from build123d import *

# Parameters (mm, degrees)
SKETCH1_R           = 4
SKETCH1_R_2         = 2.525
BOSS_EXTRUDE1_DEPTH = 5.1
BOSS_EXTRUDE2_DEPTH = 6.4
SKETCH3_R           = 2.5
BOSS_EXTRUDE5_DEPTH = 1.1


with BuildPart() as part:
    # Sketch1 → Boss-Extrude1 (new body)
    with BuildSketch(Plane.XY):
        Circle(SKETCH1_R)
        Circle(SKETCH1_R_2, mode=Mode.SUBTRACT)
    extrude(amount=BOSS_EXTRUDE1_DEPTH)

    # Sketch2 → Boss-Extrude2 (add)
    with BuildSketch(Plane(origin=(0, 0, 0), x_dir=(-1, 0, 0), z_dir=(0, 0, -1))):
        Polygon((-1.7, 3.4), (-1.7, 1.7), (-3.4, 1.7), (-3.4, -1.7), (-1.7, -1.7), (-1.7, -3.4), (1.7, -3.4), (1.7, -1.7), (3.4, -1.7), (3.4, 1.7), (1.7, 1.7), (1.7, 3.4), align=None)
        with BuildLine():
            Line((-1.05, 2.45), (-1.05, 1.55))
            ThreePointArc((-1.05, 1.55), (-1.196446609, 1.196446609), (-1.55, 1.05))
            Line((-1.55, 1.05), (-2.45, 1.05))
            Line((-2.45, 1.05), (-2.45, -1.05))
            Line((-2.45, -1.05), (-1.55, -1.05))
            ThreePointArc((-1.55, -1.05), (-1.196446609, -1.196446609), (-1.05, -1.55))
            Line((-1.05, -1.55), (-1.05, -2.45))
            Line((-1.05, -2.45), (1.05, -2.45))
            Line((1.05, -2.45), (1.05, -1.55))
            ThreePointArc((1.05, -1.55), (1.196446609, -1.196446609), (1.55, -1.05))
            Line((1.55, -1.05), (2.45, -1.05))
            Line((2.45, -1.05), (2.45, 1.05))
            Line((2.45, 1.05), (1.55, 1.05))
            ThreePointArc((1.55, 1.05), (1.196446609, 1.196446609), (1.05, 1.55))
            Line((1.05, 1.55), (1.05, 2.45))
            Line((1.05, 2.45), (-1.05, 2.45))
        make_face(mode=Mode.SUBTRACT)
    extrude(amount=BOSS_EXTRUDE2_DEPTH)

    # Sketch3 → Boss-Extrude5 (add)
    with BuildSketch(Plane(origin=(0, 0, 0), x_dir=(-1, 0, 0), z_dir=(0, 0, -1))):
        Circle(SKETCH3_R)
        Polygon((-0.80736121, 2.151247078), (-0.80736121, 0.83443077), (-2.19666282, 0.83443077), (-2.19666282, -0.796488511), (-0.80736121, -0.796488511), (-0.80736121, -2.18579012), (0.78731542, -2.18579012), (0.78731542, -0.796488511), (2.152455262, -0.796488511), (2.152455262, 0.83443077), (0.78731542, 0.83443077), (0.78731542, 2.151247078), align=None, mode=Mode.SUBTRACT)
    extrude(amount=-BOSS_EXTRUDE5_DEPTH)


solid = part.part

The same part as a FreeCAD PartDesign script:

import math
import FreeCAD as App
import Part
import Sketcher
Q = App.Units.Quantity

doc = App.newDocument("Part")
body = doc.addObject("PartDesign::Body", "Body")

sketch1 = body.newObject("Sketcher::SketchObject", "Sketch")
sketch1.AttachmentSupport = (doc.getObject("XY_Plane"), [""])
sketch1.MapMode = "FlatFace"
sketch1.addGeometry(Part.Circle(App.Vector(0, 0, 0), App.Vector(0, 0, 1), 4), False)
sketch1.addGeometry(Part.Circle(App.Vector(0, 0, 0), App.Vector(0, 0, 1), 2.5), False)
sketch1.addConstraint(Sketcher.Constraint("Coincident", 0, 3, -1, 1))
sketch1.addConstraint(Sketcher.Constraint("Coincident", 1, 3, -1, 1))
sketch1.addConstraint(Sketcher.Constraint("Diameter", 0, Q("8 mm")))
sketch1.addConstraint(Sketcher.Constraint("Diameter", 1, Q("5.05 mm")))
pad1 = body.newObject("PartDesign::Pad", "Pad")
pad1.Profile = sketch1
pad1.Length = 5.1

sketch2 = body.newObject("Sketcher::SketchObject", "Sketch001")
sketch2.AttachmentSupport = (doc.getObject("XY_Plane"), [""])
sketch2.MapMode = "FlatFace"
sketch2.addGeometry(Part.LineSegment(App.Vector(1.7, 3.4, 0), App.Vector(1.7, 1.7, 0)), False)
sketch2.addGeometry(Part.LineSegment(App.Vector(1.7, 1.7, 0), App.Vector(3.4, 1.7, 0)), False)
sketch2.addGeometry(Part.LineSegment(App.Vector(3.4, 1.7, 0), App.Vector(3.4, -1.7, 0)), False)
sketch2.addGeometry(Part.LineSegment(App.Vector(3.4, -1.7, 0), App.Vector(1.7, -1.7, 0)), False)
sketch2.addGeometry(Part.LineSegment(App.Vector(1.7, -1.7, 0), App.Vector(1.7, -3.4, 0)), False)
sketch2.addGeometry(Part.LineSegment(App.Vector(1.7, -3.4, 0), App.Vector(-1.7, -3.4, 0)), False)
sketch2.addGeometry(Part.LineSegment(App.Vector(-1.7, -3.4, 0), App.Vector(-1.7, -1.7, 0)), False)
sketch2.addGeometry(Part.LineSegment(App.Vector(-1.7, -1.7, 0), App.Vector(-3.4, -1.7, 0)), False)
sketch2.addGeometry(Part.LineSegment(App.Vector(-3.4, -1.7, 0), App.Vector(-3.4, 1.7, 0)), False)
sketch2.addGeometry(Part.LineSegment(App.Vector(-3.4, 1.7, 0), App.Vector(-1.7, 1.7, 0)), False)
sketch2.addGeometry(Part.LineSegment(App.Vector(-1.7, 1.7, 0), App.Vector(-1.7, 3.4, 0)), False)
sketch2.addGeometry(Part.LineSegment(App.Vector(-1.7, 3.4, 0), App.Vector(1.7, 3.4, 0)), False)
sketch2.addGeometry(Part.LineSegment(App.Vector(1.05, 1.55, 0), App.Vector(1.05, 2.45, 0)), False)
sketch2.addGeometry(Part.LineSegment(App.Vector(1.05, 2.45, 0), App.Vector(-1.05, 2.45, 0)), False)
sketch2.addGeometry(Part.LineSegment(App.Vector(-1.05, 2.45, 0), App.Vector(-1.05, 1.55, 0)), False)
sketch2.addGeometry(Part.ArcOfCircle(Part.Circle(App.Vector(-1.55, 1.55, 0), App.Vector(0, 0, 1), 0.5), math.radians(-90), math.radians(0)), False)
sketch2.addGeometry(Part.LineSegment(App.Vector(-1.55, 1.05, 0), App.Vector(-2.45, 1.05, 0)), False)
sketch2.addGeometry(Part.LineSegment(App.Vector(-2.45, 1.05, 0), App.Vector(-2.45, -1.05, 0)), False)
sketch2.addGeometry(Part.LineSegment(App.Vector(-2.45, -1.05, 0), App.Vector(-1.55, -1.05, 0)), False)
sketch2.addGeometry(Part.ArcOfCircle(Part.Circle(App.Vector(-1.55, -1.55, 0), App.Vector(0, 0, 1), 0.5), math.radians(0), math.radians(90)), False)
sketch2.addGeometry(Part.LineSegment(App.Vector(-1.05, -1.55, 0), App.Vector(-1.05, -2.45, 0)), False)
sketch2.addGeometry(Part.LineSegment(App.Vector(-1.05, -2.45, 0), App.Vector(1.05, -2.45, 0)), False)
sketch2.addGeometry(Part.LineSegment(App.Vector(1.05, -2.45, 0), App.Vector(1.05, -1.55, 0)), False)
sketch2.addGeometry(Part.ArcOfCircle(Part.Circle(App.Vector(1.55, -1.55, 0), App.Vector(0, 0, 1), 0.5), math.radians(90), math.radians(180)), False)
sketch2.addGeometry(Part.LineSegment(App.Vector(1.55, -1.05, 0), App.Vector(2.45, -1.05, 0)), False)
sketch2.addGeometry(Part.LineSegment(App.Vector(2.45, -1.05, 0), App.Vector(2.45, 1.05, 0)), False)
sketch2.addGeometry(Part.LineSegment(App.Vector(2.45, 1.05, 0), App.Vector(1.55, 1.05, 0)), False)
sketch2.addGeometry(Part.ArcOfCircle(Part.Circle(App.Vector(1.55, 1.55, 0), App.Vector(0, 0, 1), 0.5), math.radians(180), math.radians(270)), False)
sketch2.addConstraint(Sketcher.Constraint("Coincident", 0, 2, 1, 1))
sketch2.addConstraint(Sketcher.Constraint("Coincident", 1, 2, 2, 1))
sketch2.addConstraint(Sketcher.Constraint("Coincident", 2, 2, 3, 1))
sketch2.addConstraint(Sketcher.Constraint("Coincident", 3, 2, 4, 1))
sketch2.addConstraint(Sketcher.Constraint("Coincident", 4, 2, 5, 1))
sketch2.addConstraint(Sketcher.Constraint("Coincident", 5, 2, 6, 1))
sketch2.addConstraint(Sketcher.Constraint("Coincident", 6, 2, 7, 1))
sketch2.addConstraint(Sketcher.Constraint("Coincident", 7, 2, 8, 1))
sketch2.addConstraint(Sketcher.Constraint("Coincident", 8, 2, 9, 1))
sketch2.addConstraint(Sketcher.Constraint("Coincident", 9, 2, 10, 1))
sketch2.addConstraint(Sketcher.Constraint("Coincident", 10, 2, 11, 1))
sketch2.addConstraint(Sketcher.Constraint("Coincident", 11, 2, 0, 1))
sketch2.addConstraint(Sketcher.Constraint("Coincident", 12, 2, 13, 1))
sketch2.addConstraint(Sketcher.Constraint("Coincident", 13, 2, 14, 1))
sketch2.addConstraint(Sketcher.Constraint("Tangent", 14, 2, 15, 2))
sketch2.addConstraint(Sketcher.Constraint("Tangent", 15, 1, 16, 1))
sketch2.addConstraint(Sketcher.Constraint("Coincident", 16, 2, 17, 1))
sketch2.addConstraint(Sketcher.Constraint("Coincident", 17, 2, 18, 1))
sketch2.addConstraint(Sketcher.Constraint("Tangent", 18, 2, 19, 2))
sketch2.addConstraint(Sketcher.Constraint("Tangent", 19, 1, 20, 1))
sketch2.addConstraint(Sketcher.Constraint("Coincident", 20, 2, 21, 1))
sketch2.addConstraint(Sketcher.Constraint("Coincident", 21, 2, 22, 1))
sketch2.addConstraint(Sketcher.Constraint("Tangent", 22, 2, 23, 2))
sketch2.addConstraint(Sketcher.Constraint("Tangent", 23, 1, 24, 1))
sketch2.addConstraint(Sketcher.Constraint("Coincident", 24, 2, 25, 1))
sketch2.addConstraint(Sketcher.Constraint("Coincident", 25, 2, 26, 1))
sketch2.addConstraint(Sketcher.Constraint("Tangent", 26, 2, 27, 2))
sketch2.addConstraint(Sketcher.Constraint("Tangent", 27, 1, 12, 1))
sketch2.addConstraint(Sketcher.Constraint("Vertical", 0))
sketch2.addConstraint(Sketcher.Constraint("Horizontal", 1))
sketch2.addConstraint(Sketcher.Constraint("Vertical", 2))
sketch2.addConstraint(Sketcher.Constraint("Horizontal", 3))
sketch2.addConstraint(Sketcher.Constraint("Vertical", 4))
sketch2.addConstraint(Sketcher.Constraint("Horizontal", 5))
sketch2.addConstraint(Sketcher.Constraint("Vertical", 6))
sketch2.addConstraint(Sketcher.Constraint("Horizontal", 7))
sketch2.addConstraint(Sketcher.Constraint("Vertical", 8))
sketch2.addConstraint(Sketcher.Constraint("Horizontal", 9))
sketch2.addConstraint(Sketcher.Constraint("Vertical", 10))
sketch2.addConstraint(Sketcher.Constraint("Horizontal", 11))
sketch2.addConstraint(Sketcher.Constraint("Vertical", 12))
sketch2.addConstraint(Sketcher.Constraint("Horizontal", 13))
sketch2.addConstraint(Sketcher.Constraint("Vertical", 14))
sketch2.addConstraint(Sketcher.Constraint("Horizontal", 16))
sketch2.addConstraint(Sketcher.Constraint("Vertical", 17))
sketch2.addConstraint(Sketcher.Constraint("Horizontal", 18))
sketch2.addConstraint(Sketcher.Constraint("Vertical", 20))
sketch2.addConstraint(Sketcher.Constraint("Horizontal", 21))
sketch2.addConstraint(Sketcher.Constraint("Vertical", 22))
sketch2.addConstraint(Sketcher.Constraint("Horizontal", 24))
sketch2.addConstraint(Sketcher.Constraint("Vertical", 25))
sketch2.addConstraint(Sketcher.Constraint("Horizontal", 26))
sketch2.addConstraint(Sketcher.Constraint("Equal", 15, 19))
sketch2.addConstraint(Sketcher.Constraint("Equal", 19, 23))
sketch2.addConstraint(Sketcher.Constraint("Equal", 23, 27))
sketch2.addConstraint(Sketcher.Constraint("Symmetric", 15, 3, 23, 3, -1, 1))
sketch2.addConstraint(Sketcher.Constraint("Symmetric", 19, 3, 27, 3, -1, 1))
sketch2.addConstraint(Sketcher.Constraint("Symmetric", 0, 2, 6, 2, -1, 1))
sketch2.addConstraint(Sketcher.Constraint("Symmetric", 2, 2, 8, 2, -1, 1))
sketch2.addConstraint(Sketcher.Constraint("Symmetric", 4, 2, 10, 2, -1, 1))
sketch2.addConstraint(Sketcher.Constraint("Symmetric", 19, 3, 23, 3, -2))
sketch2.addConstraint(Sketcher.Constraint("Symmetric", 3, 2, 6, 2, -2))
sketch2.addConstraint(Sketcher.Constraint("Equal", 18, 24))
sketch2.addConstraint(Sketcher.Constraint("Equal", 9, 0))
sketch2.addConstraint(Sketcher.Constraint("Equal", 11, 2))
sketch2.addConstraint(Sketcher.Constraint("Equal", 26, 12))
sketch2.addConstraint(Sketcher.Constraint("Equal", 21, 17))
sketch2.addConstraint(Sketcher.Constraint("Equal", 14, 20))
sketch2.addConstraint(Sketcher.Constraint("Radius", 15, Q("0.5 mm")))
sketch2.addConstraint(Sketcher.Constraint("DistanceX", 1, 1, 1, 2, Q("1.7 mm")))
sketch2.addConstraint(Sketcher.Constraint("DistanceX", 5, 2, 5, 1, Q("3.4 mm")))
sketch2.addConstraint(Sketcher.Constraint("DistanceX", 13, 2, 13, 1, Q("2.1 mm")))
sketch2.addConstraint(Sketcher.Constraint("DistanceX", 16, 2, 16, 1, Q("0.9 mm")))
pad2 = body.newObject("PartDesign::Pad", "Pad001")
pad2.Profile = sketch2
pad2.Length = 6.4
pad2.Reversed = True

sketch3 = body.newObject("Sketcher::SketchObject", "Sketch002")
sketch3.AttachmentSupport = (doc.getObject("XY_Plane"), [""])
sketch3.MapMode = "FlatFace"
sketch3.addGeometry(Part.Circle(App.Vector(0, 0, 0), App.Vector(0, 0, 1), 2.5), False)
sketch3.addGeometry(Part.LineSegment(App.Vector(0.8, 0.8, 0), App.Vector(0.8, 2.2, 0)), False)
sketch3.addGeometry(Part.LineSegment(App.Vector(0.8, 2.2, 0), App.Vector(-0.8, 2.2, 0)), False)
sketch3.addGeometry(Part.LineSegment(App.Vector(-0.8, 2.2, 0), App.Vector(-0.8, 0.8, 0)), False)
sketch3.addGeometry(Part.LineSegment(App.Vector(-0.8, 0.8, 0), App.Vector(-2.2, 0.8, 0)), False)
sketch3.addGeometry(Part.LineSegment(App.Vector(-2.2, 0.8, 0), App.Vector(-2.2, -0.8, 0)), False)
sketch3.addGeometry(Part.LineSegment(App.Vector(-2.2, -0.8, 0), App.Vector(-0.8, -0.8, 0)), False)
sketch3.addGeometry(Part.LineSegment(App.Vector(-0.8, -0.8, 0), App.Vector(-0.8, -2.2, 0)), False)
sketch3.addGeometry(Part.LineSegment(App.Vector(-0.8, -2.2, 0), App.Vector(0.8, -2.2, 0)), False)
sketch3.addGeometry(Part.LineSegment(App.Vector(0.8, -2.2, 0), App.Vector(0.8, -0.8, 0)), False)
sketch3.addGeometry(Part.LineSegment(App.Vector(0.8, -0.8, 0), App.Vector(2.2, -0.8, 0)), False)
sketch3.addGeometry(Part.LineSegment(App.Vector(2.2, -0.8, 0), App.Vector(2.2, 0.8, 0)), False)
sketch3.addGeometry(Part.LineSegment(App.Vector(2.2, 0.8, 0), App.Vector(0.8, 0.8, 0)), False)
sketch3.addConstraint(Sketcher.Constraint("Coincident", 1, 2, 2, 1))
sketch3.addConstraint(Sketcher.Constraint("Coincident", 2, 2, 3, 1))
sketch3.addConstraint(Sketcher.Constraint("Coincident", 3, 2, 4, 1))
sketch3.addConstraint(Sketcher.Constraint("Coincident", 4, 2, 5, 1))
sketch3.addConstraint(Sketcher.Constraint("Coincident", 5, 2, 6, 1))
sketch3.addConstraint(Sketcher.Constraint("Coincident", 6, 2, 7, 1))
sketch3.addConstraint(Sketcher.Constraint("Coincident", 7, 2, 8, 1))
sketch3.addConstraint(Sketcher.Constraint("Coincident", 8, 2, 9, 1))
sketch3.addConstraint(Sketcher.Constraint("Coincident", 9, 2, 10, 1))
sketch3.addConstraint(Sketcher.Constraint("Coincident", 10, 2, 11, 1))
sketch3.addConstraint(Sketcher.Constraint("Coincident", 11, 2, 12, 1))
sketch3.addConstraint(Sketcher.Constraint("Coincident", 12, 2, 1, 1))
sketch3.addConstraint(Sketcher.Constraint("Vertical", 1))
sketch3.addConstraint(Sketcher.Constraint("Horizontal", 2))
sketch3.addConstraint(Sketcher.Constraint("Vertical", 3))
sketch3.addConstraint(Sketcher.Constraint("Horizontal", 4))
sketch3.addConstraint(Sketcher.Constraint("Vertical", 5))
sketch3.addConstraint(Sketcher.Constraint("Horizontal", 6))
sketch3.addConstraint(Sketcher.Constraint("Vertical", 7))
sketch3.addConstraint(Sketcher.Constraint("Horizontal", 8))
sketch3.addConstraint(Sketcher.Constraint("Vertical", 9))
sketch3.addConstraint(Sketcher.Constraint("Horizontal", 10))
sketch3.addConstraint(Sketcher.Constraint("Vertical", 11))
sketch3.addConstraint(Sketcher.Constraint("Horizontal", 12))
sketch3.addConstraint(Sketcher.Constraint("Coincident", 0, 3, -1, 1))
sketch3.addConstraint(Sketcher.Constraint("Horizontal", 6, 2, 9, 2))
sketch3.addConstraint(Sketcher.Constraint("Horizontal", 4, 2, 11, 2))
sketch3.addConstraint(Sketcher.Constraint("Vertical", 3, 2, 6, 2))
sketch3.addConstraint(Sketcher.Constraint("Vertical", 1, 2, 8, 2))
sketch3.addConstraint(Sketcher.Constraint("Equal", 12, 7))
sketch3.addConstraint(Sketcher.Constraint("Diameter", 0, Q("5 mm")))
sketch3.addConstraint(Sketcher.Constraint("DistanceX", 10, 1, 10, 2, Q("1.389302 mm")))
sketch3.addConstraint(Sketcher.Constraint("DistanceX", 4, 2, 4, 1, Q("1.36514 mm")))
sketch3.addConstraint(Sketcher.Constraint("DistanceY", 5, 2, 5, 1, Q("1.630919 mm")))
sketch3.addConstraint(Sketcher.Constraint("DistanceX", 2, 2, 2, 1, Q("1.594677 mm")))
sketch3.addConstraint(Sketcher.Constraint("DistanceY", 1, 1, 1, 2, Q("1.316816 mm")))
sketch3.addConstraint(Sketcher.Constraint("DistanceX", -1, 1, 1, 2, Q("0.807361 mm")))
sketch3.addConstraint(Sketcher.Constraint("DistanceY", -1, 1, 3, 2, Q("0.834431 mm")))
pad3 = body.newObject("PartDesign::Pad", "Pad002")
pad3.Profile = sketch3
pad3.Length = 1.1

doc.recompute()
